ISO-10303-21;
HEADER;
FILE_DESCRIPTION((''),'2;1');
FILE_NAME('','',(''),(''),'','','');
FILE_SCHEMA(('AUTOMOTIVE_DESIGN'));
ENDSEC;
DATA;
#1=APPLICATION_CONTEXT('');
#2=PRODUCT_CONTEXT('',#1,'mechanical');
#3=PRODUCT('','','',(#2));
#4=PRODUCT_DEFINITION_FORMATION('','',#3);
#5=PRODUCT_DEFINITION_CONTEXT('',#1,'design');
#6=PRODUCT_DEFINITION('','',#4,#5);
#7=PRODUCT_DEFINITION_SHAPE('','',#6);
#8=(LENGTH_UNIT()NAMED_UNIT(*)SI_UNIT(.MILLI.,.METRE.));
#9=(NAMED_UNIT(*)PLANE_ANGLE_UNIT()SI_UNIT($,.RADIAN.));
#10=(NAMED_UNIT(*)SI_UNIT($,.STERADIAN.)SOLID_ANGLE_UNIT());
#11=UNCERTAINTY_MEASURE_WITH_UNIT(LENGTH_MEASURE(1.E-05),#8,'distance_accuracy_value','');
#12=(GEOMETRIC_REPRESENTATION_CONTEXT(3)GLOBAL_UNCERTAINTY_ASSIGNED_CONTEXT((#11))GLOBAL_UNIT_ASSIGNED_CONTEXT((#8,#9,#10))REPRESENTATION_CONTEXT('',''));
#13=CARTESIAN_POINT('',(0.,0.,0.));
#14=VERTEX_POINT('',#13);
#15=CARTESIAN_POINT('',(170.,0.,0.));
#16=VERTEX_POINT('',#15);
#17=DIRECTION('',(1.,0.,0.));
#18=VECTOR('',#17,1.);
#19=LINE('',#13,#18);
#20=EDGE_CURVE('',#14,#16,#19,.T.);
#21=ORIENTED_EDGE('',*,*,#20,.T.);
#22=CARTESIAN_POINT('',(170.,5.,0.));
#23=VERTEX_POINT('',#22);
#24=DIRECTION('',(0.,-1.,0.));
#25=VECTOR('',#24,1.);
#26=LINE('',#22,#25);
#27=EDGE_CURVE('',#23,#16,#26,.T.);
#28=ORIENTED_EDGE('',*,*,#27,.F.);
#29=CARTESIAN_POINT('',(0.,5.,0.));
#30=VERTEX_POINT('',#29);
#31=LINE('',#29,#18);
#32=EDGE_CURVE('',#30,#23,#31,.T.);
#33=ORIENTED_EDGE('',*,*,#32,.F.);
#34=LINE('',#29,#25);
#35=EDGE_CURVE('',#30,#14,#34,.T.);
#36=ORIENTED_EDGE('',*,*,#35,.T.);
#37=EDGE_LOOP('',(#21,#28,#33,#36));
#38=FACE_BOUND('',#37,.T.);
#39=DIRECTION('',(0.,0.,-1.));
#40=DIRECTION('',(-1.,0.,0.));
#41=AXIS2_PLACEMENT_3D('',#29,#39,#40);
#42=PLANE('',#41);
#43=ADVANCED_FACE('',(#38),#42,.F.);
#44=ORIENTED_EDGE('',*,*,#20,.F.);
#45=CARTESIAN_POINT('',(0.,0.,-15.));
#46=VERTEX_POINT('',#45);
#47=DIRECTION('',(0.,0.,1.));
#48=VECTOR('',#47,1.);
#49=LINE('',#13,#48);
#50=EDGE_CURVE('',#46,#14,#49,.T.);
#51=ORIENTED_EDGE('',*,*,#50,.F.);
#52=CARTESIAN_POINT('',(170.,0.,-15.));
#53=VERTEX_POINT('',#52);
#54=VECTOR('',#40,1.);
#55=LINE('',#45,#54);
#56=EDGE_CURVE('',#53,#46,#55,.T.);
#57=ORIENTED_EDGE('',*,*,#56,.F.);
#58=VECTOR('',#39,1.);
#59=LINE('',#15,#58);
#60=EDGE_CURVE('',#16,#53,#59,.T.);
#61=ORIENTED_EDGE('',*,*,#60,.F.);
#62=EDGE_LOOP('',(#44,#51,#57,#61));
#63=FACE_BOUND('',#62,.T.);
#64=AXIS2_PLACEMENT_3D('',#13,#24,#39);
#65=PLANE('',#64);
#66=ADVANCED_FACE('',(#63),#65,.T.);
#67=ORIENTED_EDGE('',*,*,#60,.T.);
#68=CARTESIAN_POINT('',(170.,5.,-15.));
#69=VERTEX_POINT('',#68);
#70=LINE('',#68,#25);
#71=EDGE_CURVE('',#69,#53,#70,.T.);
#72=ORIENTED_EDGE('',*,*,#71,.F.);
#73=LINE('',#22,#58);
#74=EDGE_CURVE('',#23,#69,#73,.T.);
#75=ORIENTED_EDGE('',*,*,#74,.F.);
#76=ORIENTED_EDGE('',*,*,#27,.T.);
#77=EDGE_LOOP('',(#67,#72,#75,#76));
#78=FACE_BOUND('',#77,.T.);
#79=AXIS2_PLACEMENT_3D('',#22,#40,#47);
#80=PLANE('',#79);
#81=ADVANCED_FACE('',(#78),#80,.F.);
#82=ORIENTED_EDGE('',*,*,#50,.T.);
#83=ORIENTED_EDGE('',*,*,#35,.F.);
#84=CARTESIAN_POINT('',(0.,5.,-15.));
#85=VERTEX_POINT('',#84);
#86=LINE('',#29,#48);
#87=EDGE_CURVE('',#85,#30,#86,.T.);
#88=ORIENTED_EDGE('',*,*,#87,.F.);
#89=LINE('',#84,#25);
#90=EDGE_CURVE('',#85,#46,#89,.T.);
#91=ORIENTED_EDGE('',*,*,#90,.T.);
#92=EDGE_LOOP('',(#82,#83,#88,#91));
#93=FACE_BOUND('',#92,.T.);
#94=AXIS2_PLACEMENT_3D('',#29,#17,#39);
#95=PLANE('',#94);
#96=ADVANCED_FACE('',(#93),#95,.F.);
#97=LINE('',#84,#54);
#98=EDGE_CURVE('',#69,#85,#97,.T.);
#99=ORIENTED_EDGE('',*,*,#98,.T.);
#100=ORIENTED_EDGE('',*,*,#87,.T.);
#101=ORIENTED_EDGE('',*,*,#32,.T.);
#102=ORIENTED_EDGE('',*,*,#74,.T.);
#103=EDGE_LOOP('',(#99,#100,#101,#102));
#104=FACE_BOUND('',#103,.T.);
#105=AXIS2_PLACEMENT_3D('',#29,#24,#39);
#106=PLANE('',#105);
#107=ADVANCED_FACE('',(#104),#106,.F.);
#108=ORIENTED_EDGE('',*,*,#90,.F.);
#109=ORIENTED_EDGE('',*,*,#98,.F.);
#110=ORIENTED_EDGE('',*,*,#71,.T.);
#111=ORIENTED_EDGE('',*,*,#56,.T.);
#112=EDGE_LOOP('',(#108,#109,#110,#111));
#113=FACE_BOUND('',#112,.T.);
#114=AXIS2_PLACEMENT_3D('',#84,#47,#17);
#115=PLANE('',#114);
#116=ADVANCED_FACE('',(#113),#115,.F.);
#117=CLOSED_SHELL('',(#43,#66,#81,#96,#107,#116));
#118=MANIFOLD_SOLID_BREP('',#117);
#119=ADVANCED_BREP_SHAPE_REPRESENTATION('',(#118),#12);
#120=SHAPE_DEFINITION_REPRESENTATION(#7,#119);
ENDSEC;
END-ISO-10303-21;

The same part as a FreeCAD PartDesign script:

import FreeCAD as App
import Part
import Sketcher

doc = App.newDocument("Part")
body = doc.addObject("PartDesign::Body", "Body")

# Sketch on XZ plane
sketch1 = body.newObject("Sketcher::SketchObject", "Sketch")
sketch1.AttachmentSupport = (doc.getObject("XZ_Plane"), [""])
sketch1.MapMode = "FlatFace"
sketch1.addGeometry([
    Part.LineSegment(App.Vector(0, -15, 0), App.Vector(0, 0, 0)),
    Part.LineSegment(App.Vector(0, 0, 0), App.Vector(170, 0, 0)),
    Part.LineSegment(App.Vector(170, 0, 0), App.Vector(170, -15, 0)),
    Part.LineSegment(App.Vector(170, -15, 0), App.Vector(0, -15, 0)),
], False)
sketch1.addConstraint([
    Sketcher.Constraint("Coincident", 0, 2, 1, 1),
    Sketcher.Constraint("Coincident", 1, 2, 2, 1),
    Sketcher.Constraint("Coincident", 2, 2, 3, 1),
    Sketcher.Constraint("Coincident", 3, 2, 0, 1),
    Sketcher.Constraint("Vertical", 0),
    Sketcher.Constraint("Horizontal", 1),
    Sketcher.Constraint("Vertical", 2),
    Sketcher.Constraint("Horizontal", 3),
    Sketcher.Constraint("Coincident", 0, 2, -1, 1),
    Sketcher.Constraint("DistanceX", 1, 1, 1, 2, 170.0),
    Sketcher.Constraint("DistanceY", 0, 1, 0, 2, 15.0),
])
pad1 = body.newObject("PartDesign::Pad", "Pad")
pad1.Profile = sketch1
pad1.Length = 5
pad1.Reversed = True

doc.recompute()
